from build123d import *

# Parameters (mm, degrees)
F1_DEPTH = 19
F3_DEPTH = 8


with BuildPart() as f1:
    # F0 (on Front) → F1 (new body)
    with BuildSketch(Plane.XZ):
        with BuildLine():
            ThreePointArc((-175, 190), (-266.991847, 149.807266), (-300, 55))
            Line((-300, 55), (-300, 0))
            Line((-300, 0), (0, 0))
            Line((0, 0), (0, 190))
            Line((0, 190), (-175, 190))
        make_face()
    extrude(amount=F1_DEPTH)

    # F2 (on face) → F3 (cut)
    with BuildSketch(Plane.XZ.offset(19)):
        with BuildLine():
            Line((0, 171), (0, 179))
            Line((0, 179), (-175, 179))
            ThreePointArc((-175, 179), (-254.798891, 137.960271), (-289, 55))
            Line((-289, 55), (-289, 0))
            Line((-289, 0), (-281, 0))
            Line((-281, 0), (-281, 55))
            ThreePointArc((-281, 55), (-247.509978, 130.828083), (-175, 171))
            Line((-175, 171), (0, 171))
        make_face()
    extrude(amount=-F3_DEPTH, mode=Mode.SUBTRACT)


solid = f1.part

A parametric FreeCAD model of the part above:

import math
import FreeCAD as App
import Part
import Sketcher
from FreeCAD import Vector

doc = App.newDocument("Part")
params = doc.addObject("Spreadsheet::Sheet", "Params")
for row, (alias, value) in enumerate([
    ("sketch1_width", "300 mm"),
    ("sketch1_width2", "175 mm"),
    ("sketch1_height", "55 mm"),
    ("sketch1_height2", "190 mm"),
    ("pad1_length", "19 mm"),
    ("sketch2_radius", "130.000001 mm"),
    ("sketch2_width", "175 mm"),
    ("sketch2_width2", "8 mm"),
    ("sketch2_height", "55 mm"),
    ("pocket1_length", "8 mm"),
], start=1):
    params.set(f"A{row}", alias)
    params.set(f"B{row}", "=" + value)
    params.setAlias(f"B{row}", alias)

body = doc.addObject("PartDesign::Body", "Body")

sketch1 = body.newObject("Sketcher::SketchObject", "Sketch")
sketch1.AttachmentSupport = (doc.getObject("XZ_Plane"), [""])
sketch1.MapMode = "FlatFace"
sketch1.addGeometry([
    Part.ArcOfCircle(Part.Circle(Vector(-174.999999, 64.629629, 0), Vector(0, 0, 1), 125.370371), math.radians(90), math.radians(184.405196)),
    Part.LineSegment(Vector(-300, 55, 0), Vector(-300, 0, 0)),
    Part.LineSegment(Vector(-300, 0, 0), Vector(0, 0, 0)),
    Part.LineSegment(Vector(0, 0, 0), Vector(0, 190, 0)),
    Part.LineSegment(Vector(0, 190, 0), Vector(-175, 190, 0)),
], False)
sketch1.addConstraint([
    Sketcher.Constraint("Coincident", 0, 2, 1, 1),
    Sketcher.Constraint("Coincident", 1, 2, 2, 1),
    Sketcher.Constraint("Coincident", 2, 2, 3, 1),
    Sketcher.Constraint("Coincident", 3, 2, 4, 1),
    Sketcher.Constraint("Tangent", 4, 2, 0, 1),
    Sketcher.Constraint("Vertical", 1),
    Sketcher.Constraint("Horizontal", 2),
    Sketcher.Constraint("Vertical", 3),
    Sketcher.Constraint("Horizontal", 4),
    Sketcher.Constraint("Coincident", 2, 2, -1, 1),
    Sketcher.Constraint("DistanceX", 2, 1, 2, 2, 300.0),
    Sketcher.Constraint("DistanceX", 4, 2, 4, 1, 175.0),
    Sketcher.Constraint("DistanceY", 1, 2, 1, 1, 55.0),
    Sketcher.Constraint("DistanceY", 3, 1, 3, 2, 190.0),
])
sketch1.setExpression("Constraints[10]", "Params.sketch1_width")
sketch1.setExpression("Constraints[11]", "Params.sketch1_width2")
sketch1.setExpression("Constraints[12]", "Params.sketch1_height")
sketch1.setExpression("Constraints[13]", "Params.sketch1_height2")
pad1 = body.newObject("PartDesign::Pad", "Pad")
pad1.Profile = sketch1
pad1.setExpression("Length", "Params.pad1_length")

sketch2 = body.newObject("Sketcher::SketchObject", "Sketch001")
sketch2.AttachmentSupport = (doc.getObject("XZ_Plane"), [""])
sketch2.MapMode = "FlatFace"
sketch2.AttachmentOffset = App.Placement(Vector(0, 0, 19), App.Rotation())
sketch2.addGeometry([
    Part.LineSegment(Vector(0, 171, 0), Vector(0, 179, 0)),
    Part.LineSegment(Vector(0, 179, 0), Vector(-175, 179, 0)),
    Part.ArcOfCircle(Part.Circle(Vector(-159.0971, 49.976366, 0), Vector(0, 0, 1), 130.000001), math.radians(97.026593), math.radians(177.785348)),
    Part.LineSegment(Vector(-289, 55, 0), Vector(-289, 0, 0)),
    Part.LineSegment(Vector(-289, 0, 0), Vector(-281, 0, 0)),
    Part.LineSegment(Vector(-281, 0, 0), Vector(-281, 55, 0)),
    Part.ArcOfCircle(Part.Circle(Vector(-151.542692, 43.133839, 0), Vector(0, 0, 1), 130.000001), math.radians(100.395438), math.radians(174.762857)),
    Part.LineSegment(Vector(-175, 171, 0), Vector(0, 171, 0)),
], False)
sketch2.addConstraint([
    Sketcher.Constraint("Coincident", 0, 2, 1, 1),
    Sketcher.Constraint("Coincident", 1, 2, 2, 1),
    Sketcher.Constraint("Coincident", 2, 2, 3, 1),
    Sketcher.Constraint("Coincident", 3, 2, 4, 1),
    Sketcher.Constraint("Coincident", 4, 2, 5, 1),
    Sketcher.Constraint("Coincident", 5, 2, 6, 2),
    Sketcher.Constraint("Coincident", 6, 1, 7, 1),
    Sketcher.Constraint("Coincident", 7, 2, 0, 1),
    Sketcher.Constraint("Vertical", 0),
    Sketcher.Constraint("Horizontal", 1),
    Sketcher.Constraint("Vertical", 3),
    Sketcher.Constraint("Horizontal", 4),
    Sketcher.Constraint("Vertical", 5),
    Sketcher.Constraint("Horizontal", 7),
    Sketcher.Constraint("Equal", 2, 6),
    Sketcher.Constraint("PointOnObject", 0, 2, -2),
    Sketcher.Constraint("PointOnObject", 3, 2, -1),
    Sketcher.Constraint("Horizontal", 2, 2, 5, 2),
    Sketcher.Constraint("Vertical", 1, 2, 6, 1),
    Sketcher.Constraint("Equal", 4, 0),
    Sketcher.Constraint("Radius", 2, 130.000001),
    Sketcher.Constraint("DistanceX", 1, 2, 1, 1, 175.0),
    Sketcher.Constraint("DistanceX", 4, 1, 4, 2, 8.0),
    Sketcher.Constraint("DistanceY", 3, 2, 3, 1, 55.0),
    Sketcher.Constraint("DistanceY", -1, 1, 0, 2, 179.0),
    Sketcher.Constraint("DistanceX", 2, 2, -1, 1, 289.0),
])
sketch2.setExpression("Constraints[20]", "Params.sketch2_radius")
sketch2.setExpression("Constraints[21]", "Params.sketch2_width")
sketch2.setExpression("Constraints[22]", "Params.sketch2_width2")
sketch2.setExpression("Constraints[23]", "Params.sketch2_height")
pocket1 = body.newObject("PartDesign::Pocket", "Pocket")
pocket1.Profile = sketch2
pocket1.setExpression("Length", "Params.pocket1_length")

doc.recompute()
